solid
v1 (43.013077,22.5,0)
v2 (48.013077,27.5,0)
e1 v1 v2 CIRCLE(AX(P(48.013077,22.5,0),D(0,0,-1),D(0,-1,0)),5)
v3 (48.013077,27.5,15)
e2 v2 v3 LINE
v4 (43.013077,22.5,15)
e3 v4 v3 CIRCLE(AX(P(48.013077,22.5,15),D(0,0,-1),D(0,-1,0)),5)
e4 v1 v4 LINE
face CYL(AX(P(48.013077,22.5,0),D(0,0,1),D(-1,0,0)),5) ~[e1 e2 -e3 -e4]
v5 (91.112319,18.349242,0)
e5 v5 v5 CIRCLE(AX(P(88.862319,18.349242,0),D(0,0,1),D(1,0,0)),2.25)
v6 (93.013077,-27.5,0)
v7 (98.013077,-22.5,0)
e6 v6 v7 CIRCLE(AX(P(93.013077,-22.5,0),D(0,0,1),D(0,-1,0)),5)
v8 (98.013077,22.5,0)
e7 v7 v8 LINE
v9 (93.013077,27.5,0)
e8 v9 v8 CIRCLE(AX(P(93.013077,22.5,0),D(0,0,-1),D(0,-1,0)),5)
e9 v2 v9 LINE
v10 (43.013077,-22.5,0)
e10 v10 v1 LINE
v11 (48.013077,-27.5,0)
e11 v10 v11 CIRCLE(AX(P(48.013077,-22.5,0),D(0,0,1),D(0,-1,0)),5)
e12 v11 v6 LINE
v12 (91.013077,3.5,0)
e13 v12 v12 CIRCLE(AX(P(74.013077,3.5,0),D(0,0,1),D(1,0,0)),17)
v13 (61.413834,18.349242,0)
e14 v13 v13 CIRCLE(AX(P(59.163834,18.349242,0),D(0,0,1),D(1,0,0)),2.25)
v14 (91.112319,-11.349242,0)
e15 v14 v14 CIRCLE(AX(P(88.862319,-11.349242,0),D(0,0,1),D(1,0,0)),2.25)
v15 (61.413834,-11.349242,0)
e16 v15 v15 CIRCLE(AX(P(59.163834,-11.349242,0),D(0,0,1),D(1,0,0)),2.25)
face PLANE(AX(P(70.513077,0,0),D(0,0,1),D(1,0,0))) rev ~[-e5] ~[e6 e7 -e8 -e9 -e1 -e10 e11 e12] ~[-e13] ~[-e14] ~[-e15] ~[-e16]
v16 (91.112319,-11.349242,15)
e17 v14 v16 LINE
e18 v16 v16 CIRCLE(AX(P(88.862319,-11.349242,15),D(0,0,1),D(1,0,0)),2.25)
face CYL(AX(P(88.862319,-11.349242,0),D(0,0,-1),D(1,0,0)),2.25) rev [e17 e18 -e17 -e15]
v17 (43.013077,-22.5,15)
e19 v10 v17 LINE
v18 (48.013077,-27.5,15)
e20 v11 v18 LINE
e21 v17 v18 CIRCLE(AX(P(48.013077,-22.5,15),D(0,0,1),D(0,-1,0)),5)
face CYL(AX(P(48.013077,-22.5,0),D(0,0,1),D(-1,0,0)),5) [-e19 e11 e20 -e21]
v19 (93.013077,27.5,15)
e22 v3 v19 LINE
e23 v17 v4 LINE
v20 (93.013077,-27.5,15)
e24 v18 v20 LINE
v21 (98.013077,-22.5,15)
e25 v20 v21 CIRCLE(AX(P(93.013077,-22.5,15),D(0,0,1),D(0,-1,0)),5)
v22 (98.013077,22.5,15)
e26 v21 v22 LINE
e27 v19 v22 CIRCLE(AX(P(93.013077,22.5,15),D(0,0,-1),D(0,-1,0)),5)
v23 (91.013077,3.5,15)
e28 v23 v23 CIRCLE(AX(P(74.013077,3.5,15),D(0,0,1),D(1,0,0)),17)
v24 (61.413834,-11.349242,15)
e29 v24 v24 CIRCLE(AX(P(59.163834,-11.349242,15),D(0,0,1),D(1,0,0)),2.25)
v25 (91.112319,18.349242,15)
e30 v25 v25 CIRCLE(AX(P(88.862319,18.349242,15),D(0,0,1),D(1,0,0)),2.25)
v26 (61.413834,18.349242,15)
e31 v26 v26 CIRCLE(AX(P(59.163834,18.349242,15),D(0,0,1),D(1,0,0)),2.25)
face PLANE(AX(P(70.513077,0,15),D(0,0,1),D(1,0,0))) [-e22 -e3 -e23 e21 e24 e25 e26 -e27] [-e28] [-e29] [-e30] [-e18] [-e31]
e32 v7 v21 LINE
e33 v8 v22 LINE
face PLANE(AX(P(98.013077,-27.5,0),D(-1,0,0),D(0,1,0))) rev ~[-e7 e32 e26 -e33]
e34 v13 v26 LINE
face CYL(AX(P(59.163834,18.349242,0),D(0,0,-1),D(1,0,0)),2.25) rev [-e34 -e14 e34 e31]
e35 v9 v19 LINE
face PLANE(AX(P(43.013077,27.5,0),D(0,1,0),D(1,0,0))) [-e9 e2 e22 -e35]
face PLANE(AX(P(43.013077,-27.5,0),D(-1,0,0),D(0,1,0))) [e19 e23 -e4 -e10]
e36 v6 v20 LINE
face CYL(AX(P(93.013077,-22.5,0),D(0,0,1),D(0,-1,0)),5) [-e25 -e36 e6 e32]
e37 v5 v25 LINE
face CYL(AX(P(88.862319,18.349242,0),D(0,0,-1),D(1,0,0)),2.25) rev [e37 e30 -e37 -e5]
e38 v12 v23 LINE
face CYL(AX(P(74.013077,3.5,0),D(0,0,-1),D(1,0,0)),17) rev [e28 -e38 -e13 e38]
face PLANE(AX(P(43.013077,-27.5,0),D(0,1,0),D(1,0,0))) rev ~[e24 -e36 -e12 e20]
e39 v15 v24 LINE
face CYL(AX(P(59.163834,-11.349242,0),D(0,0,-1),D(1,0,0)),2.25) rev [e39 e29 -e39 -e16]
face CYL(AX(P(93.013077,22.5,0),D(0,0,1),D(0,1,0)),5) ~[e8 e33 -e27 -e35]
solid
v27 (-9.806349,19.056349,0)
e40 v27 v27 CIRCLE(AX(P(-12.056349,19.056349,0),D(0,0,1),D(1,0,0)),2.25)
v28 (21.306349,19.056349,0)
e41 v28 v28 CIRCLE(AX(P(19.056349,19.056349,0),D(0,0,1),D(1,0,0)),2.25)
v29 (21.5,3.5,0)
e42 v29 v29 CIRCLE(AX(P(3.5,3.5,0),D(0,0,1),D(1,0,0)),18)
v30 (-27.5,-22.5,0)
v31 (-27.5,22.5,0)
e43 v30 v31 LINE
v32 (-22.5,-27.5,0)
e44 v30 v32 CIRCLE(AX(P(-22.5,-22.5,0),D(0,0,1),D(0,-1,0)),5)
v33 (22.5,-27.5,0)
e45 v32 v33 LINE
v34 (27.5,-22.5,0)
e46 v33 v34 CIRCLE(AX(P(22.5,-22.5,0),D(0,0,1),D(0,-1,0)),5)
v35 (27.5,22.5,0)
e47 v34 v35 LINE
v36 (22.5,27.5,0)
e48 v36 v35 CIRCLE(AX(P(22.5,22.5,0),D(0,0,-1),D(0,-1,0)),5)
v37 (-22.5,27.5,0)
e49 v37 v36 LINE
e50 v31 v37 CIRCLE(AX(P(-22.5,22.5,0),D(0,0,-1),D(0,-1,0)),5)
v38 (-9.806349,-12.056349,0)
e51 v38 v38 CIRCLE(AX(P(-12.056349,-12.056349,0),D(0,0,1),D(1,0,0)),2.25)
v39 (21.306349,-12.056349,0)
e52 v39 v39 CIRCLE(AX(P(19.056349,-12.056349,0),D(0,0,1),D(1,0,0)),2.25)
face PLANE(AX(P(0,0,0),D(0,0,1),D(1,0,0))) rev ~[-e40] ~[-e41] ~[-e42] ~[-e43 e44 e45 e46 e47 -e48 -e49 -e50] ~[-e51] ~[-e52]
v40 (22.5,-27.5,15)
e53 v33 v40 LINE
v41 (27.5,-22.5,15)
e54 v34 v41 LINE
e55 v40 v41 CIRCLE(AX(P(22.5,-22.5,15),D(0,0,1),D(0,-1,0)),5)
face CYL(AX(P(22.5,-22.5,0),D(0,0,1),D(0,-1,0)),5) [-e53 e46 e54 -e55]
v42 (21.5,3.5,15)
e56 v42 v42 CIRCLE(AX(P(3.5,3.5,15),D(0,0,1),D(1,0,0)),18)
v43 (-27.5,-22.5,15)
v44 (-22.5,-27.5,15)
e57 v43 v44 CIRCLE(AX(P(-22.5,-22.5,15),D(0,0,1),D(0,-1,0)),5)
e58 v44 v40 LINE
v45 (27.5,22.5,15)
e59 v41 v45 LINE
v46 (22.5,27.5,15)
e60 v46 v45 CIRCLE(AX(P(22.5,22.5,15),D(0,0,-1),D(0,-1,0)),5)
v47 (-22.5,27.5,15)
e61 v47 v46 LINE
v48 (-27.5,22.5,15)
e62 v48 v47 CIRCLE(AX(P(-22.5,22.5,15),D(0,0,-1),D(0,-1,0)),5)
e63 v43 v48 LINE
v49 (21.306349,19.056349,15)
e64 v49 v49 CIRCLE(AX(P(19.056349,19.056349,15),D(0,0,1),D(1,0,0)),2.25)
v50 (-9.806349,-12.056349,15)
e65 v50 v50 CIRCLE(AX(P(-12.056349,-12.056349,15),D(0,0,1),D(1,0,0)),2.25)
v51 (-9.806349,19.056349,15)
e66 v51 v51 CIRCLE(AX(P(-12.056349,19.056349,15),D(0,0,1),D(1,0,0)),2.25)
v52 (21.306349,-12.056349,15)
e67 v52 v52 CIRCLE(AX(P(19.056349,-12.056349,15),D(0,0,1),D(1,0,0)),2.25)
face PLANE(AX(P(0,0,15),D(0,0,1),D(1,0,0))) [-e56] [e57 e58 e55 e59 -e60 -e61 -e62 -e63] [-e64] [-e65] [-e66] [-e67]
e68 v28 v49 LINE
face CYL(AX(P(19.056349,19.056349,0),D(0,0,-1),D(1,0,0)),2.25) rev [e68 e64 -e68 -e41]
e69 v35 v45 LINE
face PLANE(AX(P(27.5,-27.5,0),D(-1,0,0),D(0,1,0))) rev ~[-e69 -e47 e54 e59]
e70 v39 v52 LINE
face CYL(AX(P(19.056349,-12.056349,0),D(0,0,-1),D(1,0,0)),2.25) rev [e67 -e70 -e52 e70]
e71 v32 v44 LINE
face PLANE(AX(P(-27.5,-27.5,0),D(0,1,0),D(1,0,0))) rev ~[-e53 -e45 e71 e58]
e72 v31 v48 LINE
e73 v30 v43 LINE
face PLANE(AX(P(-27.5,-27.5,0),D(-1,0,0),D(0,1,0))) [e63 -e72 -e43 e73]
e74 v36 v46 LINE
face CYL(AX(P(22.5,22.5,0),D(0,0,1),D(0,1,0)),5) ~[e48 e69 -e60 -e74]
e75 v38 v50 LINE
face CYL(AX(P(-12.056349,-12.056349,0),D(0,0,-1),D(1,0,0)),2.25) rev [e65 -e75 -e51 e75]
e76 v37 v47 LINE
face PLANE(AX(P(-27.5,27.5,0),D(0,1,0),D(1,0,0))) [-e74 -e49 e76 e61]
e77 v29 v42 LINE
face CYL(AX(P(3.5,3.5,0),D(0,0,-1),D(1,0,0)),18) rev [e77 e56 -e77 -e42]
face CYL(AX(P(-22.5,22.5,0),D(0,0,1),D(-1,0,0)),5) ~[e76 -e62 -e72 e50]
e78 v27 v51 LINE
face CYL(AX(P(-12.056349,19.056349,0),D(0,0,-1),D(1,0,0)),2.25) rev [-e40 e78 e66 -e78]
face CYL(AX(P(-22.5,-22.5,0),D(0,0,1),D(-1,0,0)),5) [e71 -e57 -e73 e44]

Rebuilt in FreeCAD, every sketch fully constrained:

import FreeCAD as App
import Part
import Sketcher

V = App.Vector
Q = App.Units.Quantity


def edges_at(feature, points):
    """Names of the edges that pass closest to the given points."""
    edges = feature.Shape.Edges
    near = lambda p: min(range(len(edges)), key=lambda i: edges[i].distToShape(Part.Vertex(*p))[0])
    return sorted({f"Edge{near(p) + 1}" for p in points})


def add_polygon(sketch, points):
    """Adds a closed chain of lines whose ends are joined by coincident constraints."""
    first, n = sketch.GeometryCount, len(points)
    for a, b in zip(points, points[1:] + points[:1]):
        sketch.addGeometry(Part.LineSegment(App.Vector(*a, 0), App.Vector(*b, 0)), False)
    for i in range(n):
        sketch.addConstraint(Sketcher.Constraint("Coincident", first + i, 2, first + (i + 1) % n, 1))

doc = App.newDocument("Part")
body = doc.addObject("PartDesign::Body", "Body")
body.AllowCompound = True

# Sketch on XY plane
sketch1 = body.newObject("Sketcher::SketchObject", "Sketch")
sketch1.AttachmentSupport = (doc.getObject("XY_Plane"), [""])
sketch1.MapMode = "FlatFace"
add_polygon(sketch1, [(-27.5, 27.5), (-27.5, -27.5), (27.5, -27.5), (27.5, 27.5)])  # lines 0-3
sketch1.addGeometry(Part.Circle(V(-12.1, -12.1, 0), V(0, 0, 1), 2.2), False)  # 4
sketch1.addGeometry(Part.Circle(V(19.1, -12.1, 0), V(0, 0, 1), 2.2), False)  # 5
sketch1.addGeometry(Part.Circle(V(-12.1, 19.1, 0), V(0, 0, 1), 2.2), False)  # 6
sketch1.addGeometry(Part.Circle(V(3.5, 3.5, 0), V(0, 0, 1), 18), False)  # 7
sketch1.addGeometry(Part.Circle(V(19.1, 19.1, 0), V(0, 0, 1), 2.2), False)  # 8
add_polygon(sketch1, [(43, 27.5), (43, -27.5), (98, -27.5), (98, 27.5)])  # lines 9-12
sketch1.addGeometry(Part.Circle(V(59.2, -11.3, 0), V(0, 0, 1), 2.2), False)  # 13
sketch1.addGeometry(Part.Circle(V(88.9, -11.3, 0), V(0, 0, 1), 2.2), False)  # 14
sketch1.addGeometry(Part.Circle(V(59.2, 18.3, 0), V(0, 0, 1), 2.2), False)  # 15
sketch1.addGeometry(Part.Circle(V(74, 3.5, 0), V(0, 0, 1), 17), False)  # 16
sketch1.addGeometry(Part.Circle(V(88.9, 18.3, 0), V(0, 0, 1), 2.2), False)  # 17
sketch1.addConstraint([
    Sketcher.Constraint("Vertical", 0),
    Sketcher.Constraint("Horizontal", 1),
    Sketcher.Constraint("Vertical", 2),
    Sketcher.Constraint("Horizontal", 3),
    Sketcher.Constraint("Vertical", 9),
    Sketcher.Constraint("Horizontal", 10),
    Sketcher.Constraint("Vertical", 11),
    Sketcher.Constraint("Horizontal", 12),
    Sketcher.Constraint("Equal", 4, 5),
    Sketcher.Constraint("Equal", 5, 6),
    Sketcher.Constraint("Equal", 6, 8),
    Sketcher.Constraint("Equal", 8, 13),
    Sketcher.Constraint("Equal", 13, 14),
    Sketcher.Constraint("Equal", 14, 15),
    Sketcher.Constraint("Equal", 15, 17),
    Sketcher.Constraint("Symmetric", 0, 2, 2, 2, -1, 1),
    Sketcher.Constraint("Horizontal", 4, 3, 5, 3),
    Sketcher.Constraint("Horizontal", 6, 3, 8, 3),
    Sketcher.Constraint("Horizontal", 13, 3, 14, 3),
    Sketcher.Constraint("Horizontal", 7, 3, 16, 3),
    Sketcher.Constraint("Horizontal", 15, 3, 17, 3),
    Sketcher.Constraint("Horizontal", 1, 2, 9, 2),
    Sketcher.Constraint("Horizontal", 3, 2, 11, 2),
    Sketcher.Constraint("Vertical", 4, 3, 6, 3),
    Sketcher.Constraint("Vertical", 5, 3, 8, 3),
    Sketcher.Constraint("Vertical", 13, 3, 15, 3),
    Sketcher.Constraint("Vertical", 14, 3, 17, 3),
    Sketcher.Constraint("Equal", 3, 10),
    Sketcher.Constraint("Equal", 12, 0),
    Sketcher.Constraint("Diameter", 7, Q("36 mm")),
    Sketcher.Constraint("Diameter", 16, Q("34 mm")),
    Sketcher.Constraint("Diameter", 4, Q("4.5 mm")),
    Sketcher.Constraint("DistanceX", 1, 1, 1, 2, Q("55 mm")),
    Sketcher.Constraint("DistanceX", 0, 2, 7, 3, Q("31 mm")),
    Sketcher.Constraint("DistanceY", 0, 2, 7, 3, Q("31 mm")),
    Sketcher.Constraint("DistanceX", 9, 2, 16, 3, Q("31 mm")),
    Sketcher.Constraint("DistanceX", 4, 3, 5, 3, Q("31.112698 mm")),
    Sketcher.Constraint("DistanceY", 4, 3, 6, 3, Q("31.112698 mm")),
    Sketcher.Constraint("DistanceX", 4, 3, -1, 1, Q("12.056349 mm")),
    Sketcher.Constraint("DistanceY", 4, 3, -1, 1, Q("12.056349 mm")),
    Sketcher.Constraint("DistanceX", -1, 1, 14, 3, Q("88.862319 mm")),
    Sketcher.Constraint("DistanceY", -1, 1, 15, 3, Q("18.349242 mm")),
    Sketcher.Constraint("DistanceY", 13, 3, 8, 3, Q("30.405591 mm")),
    Sketcher.Constraint("DistanceX", 5, 3, 9, 2, Q("23.956728 mm")),
    Sketcher.Constraint("DistanceX", -1, 1, 13, 3, Q("59.163834 mm")),
])
pad1 = body.newObject("PartDesign::Pad", "Pad")
pad1.Profile = sketch1
pad1.Length = 15
doc.recompute()

fillet = body.newObject("PartDesign::Fillet", "Fillet")
fillet.Base = (pad1, edges_at(pad1, [
    (-27.5, -27.5, 7.5),
    (27.5, -27.5, 7.5),
    (27.5, 27.5, 7.5),
    (-27.5, 27.5, 7.5),
    (43.013, 27.5, 7.5),
    (98.013, 27.5, 7.5),
    (43.013, -27.5, 7.5),
    (98.013, -27.5, 7.5),
]))
fillet.Radius = 5

doc.recompute()
